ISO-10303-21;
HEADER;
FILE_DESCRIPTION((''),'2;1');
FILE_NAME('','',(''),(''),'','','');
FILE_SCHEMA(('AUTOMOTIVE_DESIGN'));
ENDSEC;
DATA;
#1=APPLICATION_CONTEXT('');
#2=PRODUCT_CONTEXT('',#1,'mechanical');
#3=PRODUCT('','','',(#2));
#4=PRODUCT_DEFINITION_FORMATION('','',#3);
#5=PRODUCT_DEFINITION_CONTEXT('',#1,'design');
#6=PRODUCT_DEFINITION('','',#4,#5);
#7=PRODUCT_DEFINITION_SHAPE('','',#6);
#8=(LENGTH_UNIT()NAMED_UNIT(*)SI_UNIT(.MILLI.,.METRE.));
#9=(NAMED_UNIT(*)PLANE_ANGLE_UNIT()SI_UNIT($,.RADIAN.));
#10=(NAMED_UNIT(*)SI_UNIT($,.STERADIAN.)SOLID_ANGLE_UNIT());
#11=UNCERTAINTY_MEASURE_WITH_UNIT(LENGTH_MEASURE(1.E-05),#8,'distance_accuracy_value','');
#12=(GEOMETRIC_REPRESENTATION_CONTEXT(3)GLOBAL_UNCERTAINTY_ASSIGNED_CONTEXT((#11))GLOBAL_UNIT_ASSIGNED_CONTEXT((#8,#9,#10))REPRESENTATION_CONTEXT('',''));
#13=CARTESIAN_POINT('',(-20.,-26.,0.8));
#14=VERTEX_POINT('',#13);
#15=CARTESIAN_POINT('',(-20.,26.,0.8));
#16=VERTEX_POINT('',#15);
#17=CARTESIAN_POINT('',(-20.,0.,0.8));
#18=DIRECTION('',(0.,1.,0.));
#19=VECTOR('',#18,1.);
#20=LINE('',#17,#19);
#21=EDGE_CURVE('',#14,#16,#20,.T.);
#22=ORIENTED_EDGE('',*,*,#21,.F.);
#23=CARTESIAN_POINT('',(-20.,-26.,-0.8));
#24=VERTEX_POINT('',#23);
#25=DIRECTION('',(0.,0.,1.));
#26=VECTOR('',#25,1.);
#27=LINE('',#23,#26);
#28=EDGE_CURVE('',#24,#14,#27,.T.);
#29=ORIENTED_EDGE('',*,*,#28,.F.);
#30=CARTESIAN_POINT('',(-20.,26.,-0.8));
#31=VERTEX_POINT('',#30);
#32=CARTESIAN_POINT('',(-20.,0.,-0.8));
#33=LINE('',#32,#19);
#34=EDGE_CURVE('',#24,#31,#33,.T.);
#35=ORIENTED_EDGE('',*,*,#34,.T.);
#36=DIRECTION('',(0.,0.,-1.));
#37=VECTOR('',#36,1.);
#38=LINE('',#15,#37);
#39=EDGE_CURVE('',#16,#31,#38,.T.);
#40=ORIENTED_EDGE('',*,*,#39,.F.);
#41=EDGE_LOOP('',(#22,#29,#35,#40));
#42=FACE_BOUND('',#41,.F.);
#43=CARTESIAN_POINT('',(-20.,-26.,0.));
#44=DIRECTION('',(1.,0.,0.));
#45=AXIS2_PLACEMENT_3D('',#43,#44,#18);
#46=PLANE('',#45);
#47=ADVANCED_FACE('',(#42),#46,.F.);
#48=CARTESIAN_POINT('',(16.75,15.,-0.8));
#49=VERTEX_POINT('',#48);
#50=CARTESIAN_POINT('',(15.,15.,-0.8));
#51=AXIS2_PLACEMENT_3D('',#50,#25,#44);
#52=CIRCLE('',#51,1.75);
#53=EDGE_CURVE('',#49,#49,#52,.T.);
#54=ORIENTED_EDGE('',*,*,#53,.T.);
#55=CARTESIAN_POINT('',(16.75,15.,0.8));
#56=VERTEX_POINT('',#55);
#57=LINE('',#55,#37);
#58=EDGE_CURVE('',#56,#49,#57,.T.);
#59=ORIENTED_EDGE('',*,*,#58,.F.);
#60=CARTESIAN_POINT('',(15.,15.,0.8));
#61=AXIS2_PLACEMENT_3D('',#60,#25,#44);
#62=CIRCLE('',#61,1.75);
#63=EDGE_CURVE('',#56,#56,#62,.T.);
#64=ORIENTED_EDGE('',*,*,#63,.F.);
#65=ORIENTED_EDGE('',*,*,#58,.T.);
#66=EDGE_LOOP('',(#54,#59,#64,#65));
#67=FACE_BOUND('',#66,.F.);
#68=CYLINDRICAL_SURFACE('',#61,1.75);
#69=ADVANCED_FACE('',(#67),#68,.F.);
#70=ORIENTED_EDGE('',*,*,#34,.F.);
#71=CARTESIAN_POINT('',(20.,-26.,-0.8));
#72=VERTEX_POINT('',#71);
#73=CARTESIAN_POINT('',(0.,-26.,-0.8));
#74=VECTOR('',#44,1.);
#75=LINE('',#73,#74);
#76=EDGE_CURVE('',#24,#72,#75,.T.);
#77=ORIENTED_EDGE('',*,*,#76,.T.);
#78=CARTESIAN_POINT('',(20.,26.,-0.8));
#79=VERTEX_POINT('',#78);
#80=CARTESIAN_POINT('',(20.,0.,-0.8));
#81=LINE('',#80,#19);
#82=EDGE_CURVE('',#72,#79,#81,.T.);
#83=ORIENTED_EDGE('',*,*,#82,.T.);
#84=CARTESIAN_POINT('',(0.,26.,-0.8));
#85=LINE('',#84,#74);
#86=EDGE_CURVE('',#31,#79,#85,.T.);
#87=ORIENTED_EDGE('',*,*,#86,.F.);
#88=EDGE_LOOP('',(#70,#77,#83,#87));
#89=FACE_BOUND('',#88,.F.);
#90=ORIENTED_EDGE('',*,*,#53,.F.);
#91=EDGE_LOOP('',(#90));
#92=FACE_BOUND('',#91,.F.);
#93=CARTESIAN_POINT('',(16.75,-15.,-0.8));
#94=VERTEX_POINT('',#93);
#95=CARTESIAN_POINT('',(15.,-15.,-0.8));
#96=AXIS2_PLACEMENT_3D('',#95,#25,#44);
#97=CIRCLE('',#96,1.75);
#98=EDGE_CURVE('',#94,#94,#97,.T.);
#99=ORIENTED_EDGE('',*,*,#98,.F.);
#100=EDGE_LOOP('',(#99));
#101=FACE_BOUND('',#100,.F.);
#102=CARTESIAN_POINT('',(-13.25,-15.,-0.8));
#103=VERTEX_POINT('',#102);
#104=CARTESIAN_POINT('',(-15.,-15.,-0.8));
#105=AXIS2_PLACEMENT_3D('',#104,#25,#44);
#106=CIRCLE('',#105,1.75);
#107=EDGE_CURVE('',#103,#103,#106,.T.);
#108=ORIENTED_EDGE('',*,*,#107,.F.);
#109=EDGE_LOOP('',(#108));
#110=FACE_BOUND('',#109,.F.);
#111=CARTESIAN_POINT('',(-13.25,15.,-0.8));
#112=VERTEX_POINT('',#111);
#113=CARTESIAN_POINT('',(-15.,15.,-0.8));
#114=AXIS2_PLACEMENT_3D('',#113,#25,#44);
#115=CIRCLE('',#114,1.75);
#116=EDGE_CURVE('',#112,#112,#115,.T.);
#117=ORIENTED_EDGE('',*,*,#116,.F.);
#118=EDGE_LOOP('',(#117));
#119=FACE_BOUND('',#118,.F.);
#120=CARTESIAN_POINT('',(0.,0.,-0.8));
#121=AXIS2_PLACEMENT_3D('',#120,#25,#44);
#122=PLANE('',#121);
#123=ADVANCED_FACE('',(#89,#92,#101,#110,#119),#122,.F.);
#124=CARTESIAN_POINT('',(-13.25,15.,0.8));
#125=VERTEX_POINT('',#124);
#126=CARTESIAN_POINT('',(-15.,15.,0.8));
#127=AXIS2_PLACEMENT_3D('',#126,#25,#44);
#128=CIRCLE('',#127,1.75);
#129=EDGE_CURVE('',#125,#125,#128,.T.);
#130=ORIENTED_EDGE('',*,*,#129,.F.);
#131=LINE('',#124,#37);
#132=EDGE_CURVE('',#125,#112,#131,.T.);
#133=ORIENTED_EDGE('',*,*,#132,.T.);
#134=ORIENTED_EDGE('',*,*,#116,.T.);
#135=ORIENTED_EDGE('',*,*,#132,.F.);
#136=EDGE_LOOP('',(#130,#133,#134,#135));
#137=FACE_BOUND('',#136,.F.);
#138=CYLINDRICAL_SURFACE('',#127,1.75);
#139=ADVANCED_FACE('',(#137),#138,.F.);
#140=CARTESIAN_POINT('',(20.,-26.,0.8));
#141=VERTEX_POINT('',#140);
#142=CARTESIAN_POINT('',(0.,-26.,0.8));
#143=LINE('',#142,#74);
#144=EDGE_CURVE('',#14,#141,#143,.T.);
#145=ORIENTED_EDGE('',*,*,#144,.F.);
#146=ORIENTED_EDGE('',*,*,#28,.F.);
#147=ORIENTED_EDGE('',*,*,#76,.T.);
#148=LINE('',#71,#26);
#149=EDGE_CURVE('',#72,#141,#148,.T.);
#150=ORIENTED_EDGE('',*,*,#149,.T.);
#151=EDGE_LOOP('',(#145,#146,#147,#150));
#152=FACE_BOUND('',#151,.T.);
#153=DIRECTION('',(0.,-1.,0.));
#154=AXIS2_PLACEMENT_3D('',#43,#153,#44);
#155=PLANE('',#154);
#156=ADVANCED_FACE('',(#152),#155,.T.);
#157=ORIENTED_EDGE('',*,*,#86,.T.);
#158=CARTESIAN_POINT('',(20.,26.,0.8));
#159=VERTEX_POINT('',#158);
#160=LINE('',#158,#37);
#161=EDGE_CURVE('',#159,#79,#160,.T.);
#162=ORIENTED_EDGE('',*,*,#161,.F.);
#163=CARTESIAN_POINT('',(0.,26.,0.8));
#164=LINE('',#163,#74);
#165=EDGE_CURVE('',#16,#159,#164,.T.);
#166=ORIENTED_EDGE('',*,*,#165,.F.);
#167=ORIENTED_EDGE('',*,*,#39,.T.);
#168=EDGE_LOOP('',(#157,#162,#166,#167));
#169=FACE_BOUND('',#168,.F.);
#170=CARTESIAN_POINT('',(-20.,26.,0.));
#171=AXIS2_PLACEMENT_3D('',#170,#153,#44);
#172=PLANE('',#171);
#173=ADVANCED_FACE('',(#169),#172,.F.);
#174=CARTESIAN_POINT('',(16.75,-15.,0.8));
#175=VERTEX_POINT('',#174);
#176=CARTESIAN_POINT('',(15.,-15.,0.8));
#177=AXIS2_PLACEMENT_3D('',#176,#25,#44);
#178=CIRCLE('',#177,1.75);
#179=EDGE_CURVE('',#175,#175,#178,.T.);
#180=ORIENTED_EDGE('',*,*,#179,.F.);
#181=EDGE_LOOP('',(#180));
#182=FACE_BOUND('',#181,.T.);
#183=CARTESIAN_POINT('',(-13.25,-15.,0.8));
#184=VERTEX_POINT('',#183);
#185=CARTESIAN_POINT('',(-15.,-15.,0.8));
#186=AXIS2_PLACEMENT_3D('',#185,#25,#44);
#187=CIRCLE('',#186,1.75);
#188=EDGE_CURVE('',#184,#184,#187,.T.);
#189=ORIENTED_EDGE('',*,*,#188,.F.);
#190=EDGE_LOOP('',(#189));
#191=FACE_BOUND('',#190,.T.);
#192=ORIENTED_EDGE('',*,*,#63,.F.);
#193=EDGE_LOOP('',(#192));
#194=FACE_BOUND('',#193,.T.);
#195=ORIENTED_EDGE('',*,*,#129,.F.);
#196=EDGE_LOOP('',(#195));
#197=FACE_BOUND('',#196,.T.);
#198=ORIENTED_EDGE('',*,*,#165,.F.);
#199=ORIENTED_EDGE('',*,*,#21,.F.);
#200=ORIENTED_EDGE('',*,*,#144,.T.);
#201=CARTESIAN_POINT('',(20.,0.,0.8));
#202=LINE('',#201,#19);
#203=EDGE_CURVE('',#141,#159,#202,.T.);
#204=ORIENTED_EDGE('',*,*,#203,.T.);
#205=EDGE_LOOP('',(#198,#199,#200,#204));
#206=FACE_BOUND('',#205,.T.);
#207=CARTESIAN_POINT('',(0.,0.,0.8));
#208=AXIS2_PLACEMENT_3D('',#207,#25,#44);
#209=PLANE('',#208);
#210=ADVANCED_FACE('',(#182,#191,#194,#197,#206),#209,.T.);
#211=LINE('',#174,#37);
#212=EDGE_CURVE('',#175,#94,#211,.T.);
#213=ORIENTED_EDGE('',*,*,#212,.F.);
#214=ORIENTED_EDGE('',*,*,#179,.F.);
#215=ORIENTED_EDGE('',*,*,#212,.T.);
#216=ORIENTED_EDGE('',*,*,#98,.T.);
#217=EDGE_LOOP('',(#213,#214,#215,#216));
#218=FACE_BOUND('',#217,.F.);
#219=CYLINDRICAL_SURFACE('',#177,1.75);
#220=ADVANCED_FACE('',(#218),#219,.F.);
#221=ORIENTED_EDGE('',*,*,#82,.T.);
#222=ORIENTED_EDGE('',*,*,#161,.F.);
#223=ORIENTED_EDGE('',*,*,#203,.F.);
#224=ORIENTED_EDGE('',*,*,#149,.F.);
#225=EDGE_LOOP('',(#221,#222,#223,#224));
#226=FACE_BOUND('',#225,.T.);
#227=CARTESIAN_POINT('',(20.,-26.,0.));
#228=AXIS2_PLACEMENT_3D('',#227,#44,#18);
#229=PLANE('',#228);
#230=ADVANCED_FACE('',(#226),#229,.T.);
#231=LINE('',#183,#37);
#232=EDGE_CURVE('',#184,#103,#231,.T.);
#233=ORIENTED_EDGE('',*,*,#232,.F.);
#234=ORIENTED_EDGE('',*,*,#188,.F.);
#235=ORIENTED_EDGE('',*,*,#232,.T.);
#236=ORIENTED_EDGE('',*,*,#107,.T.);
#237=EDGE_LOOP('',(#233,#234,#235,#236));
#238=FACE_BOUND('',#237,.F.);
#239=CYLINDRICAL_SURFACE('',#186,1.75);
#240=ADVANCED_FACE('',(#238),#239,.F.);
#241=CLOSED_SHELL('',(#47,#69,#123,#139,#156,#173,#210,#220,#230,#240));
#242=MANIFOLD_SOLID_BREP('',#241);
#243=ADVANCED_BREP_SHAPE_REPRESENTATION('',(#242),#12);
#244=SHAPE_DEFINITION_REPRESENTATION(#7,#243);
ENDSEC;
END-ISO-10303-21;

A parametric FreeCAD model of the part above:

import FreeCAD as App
import Part
import Sketcher

V = App.Vector
Q = App.Units.Quantity


def add_polygon(sketch, points):
    """Adds a closed chain of lines whose ends are joined by coincident constraints."""
    first, n = sketch.GeometryCount, len(points)
    for a, b in zip(points, points[1:] + points[:1]):
        sketch.addGeometry(Part.LineSegment(App.Vector(*a, 0), App.Vector(*b, 0)), False)
    for i in range(n):
        sketch.addConstraint(Sketcher.Constraint("Coincident", first + i, 2, first + (i + 1) % n, 1))

doc = App.newDocument("Part")
body = doc.addObject("PartDesign::Body", "Body")

sketch1 = body.newObject("Sketcher::SketchObject", "Sketch")
sketch1.AttachmentSupport = (doc.getObject("XY_Plane"), [""])
sketch1.MapMode = "FlatFace"
add_polygon(sketch1, [(-20, 26), (-20, -26), (20, -26), (20, 26)])
sketch1.addConstraint([
    Sketcher.Constraint("Vertical", 0),
    Sketcher.Constraint("Horizontal", 1),
    Sketcher.Constraint("Vertical", 2),
    Sketcher.Constraint("Horizontal", 3),
    Sketcher.Constraint("Symmetric", 0, 2, 2, 2, -1, 1),
    Sketcher.Constraint("DistanceX", 1, 1, 1, 2, Q("40 mm")),
    Sketcher.Constraint("DistanceY", 0, 2, 0, 1, Q("52 mm")),
])
pad1 = body.newObject("PartDesign::Pad", "Pad")
pad1.Profile = sketch1
pad1.Length = 1.6
pad1.Midplane = True

sketch2 = body.newObject("Sketcher::SketchObject", "Sketch001")
sketch2.AttachmentSupport = (doc.getObject("XY_Plane"), [""])
sketch2.MapMode = "FlatFace"
sketch2.AttachmentOffset = App.Placement(V(0, 0, 0.8), App.Rotation())
sketch2.addGeometry([
    Part.Circle(V(-15, 15, 0), V(0, 0, 1), 1.8),
    Part.Circle(V(15, 15, 0), V(0, 0, 1), 1.8),
    Part.Circle(V(-15, -15, 0), V(0, 0, 1), 1.8),
    Part.Circle(V(15, -15, 0), V(0, 0, 1), 1.8),
], False)
sketch2.addConstraint([
    Sketcher.Constraint("Equal", 0, 1),
    Sketcher.Constraint("Equal", 1, 2),
    Sketcher.Constraint("Equal", 2, 3),
    Sketcher.Constraint("Symmetric", 1, 3, 2, 3, -1, 1),
    Sketcher.Constraint("Symmetric", 0, 3, 3, 3, -1, 1),
    Sketcher.Constraint("Symmetric", 0, 3, 1, 3, -2),
    Sketcher.Constraint("Diameter", 0, Q("3.5 mm")),
    Sketcher.Constraint("DistanceX", 0, 3, -1, 1, Q("15 mm")),
    Sketcher.Constraint("DistanceY", -1, 1, 0, 3, Q("15 mm")),
])
pocket1 = body.newObject("PartDesign::Pocket", "Pocket")
pocket1.Profile = sketch2
pocket1.Type = "ThroughAll"

doc.recompute()
